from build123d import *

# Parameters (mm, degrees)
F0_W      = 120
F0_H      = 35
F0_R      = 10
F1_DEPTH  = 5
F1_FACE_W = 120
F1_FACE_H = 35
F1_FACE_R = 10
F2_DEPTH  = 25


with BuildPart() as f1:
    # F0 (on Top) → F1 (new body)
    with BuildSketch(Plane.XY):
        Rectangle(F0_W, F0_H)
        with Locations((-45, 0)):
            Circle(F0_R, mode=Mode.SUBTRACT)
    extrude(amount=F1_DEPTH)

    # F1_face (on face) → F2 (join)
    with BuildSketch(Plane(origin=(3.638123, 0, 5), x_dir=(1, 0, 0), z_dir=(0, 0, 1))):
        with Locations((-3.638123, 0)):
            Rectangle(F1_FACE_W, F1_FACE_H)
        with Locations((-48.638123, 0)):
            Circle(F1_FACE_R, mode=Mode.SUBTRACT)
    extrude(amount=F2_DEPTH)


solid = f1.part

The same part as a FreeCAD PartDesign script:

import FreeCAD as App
import Part
import Sketcher

doc = App.newDocument("Part")
body = doc.addObject("PartDesign::Body", "Body")

sketch1 = body.newObject("Sketcher::SketchObject", "Sketch")
sketch1.AttachmentSupport = (doc.getObject("XY_Plane"), [""])
sketch1.MapMode = "FlatFace"
sketch1.addGeometry([
    Part.LineSegment(App.Vector(-60, 18, 0), App.Vector(-60, -18, 0)),
    Part.LineSegment(App.Vector(-60, -18, 0), App.Vector(60, -18, 0)),
    Part.LineSegment(App.Vector(60, -18, 0), App.Vector(60, 18, 0)),
    Part.LineSegment(App.Vector(60, 18, 0), App.Vector(-60, 18, 0)),
    Part.Circle(App.Vector(-45, 0, 0), App.Vector(0, 0, 1), 10),
], False)
sketch1.addConstraint([
    Sketcher.Constraint("Coincident", 0, 2, 1, 1),
    Sketcher.Constraint("Coincident", 1, 2, 2, 1),
    Sketcher.Constraint("Coincident", 2, 2, 3, 1),
    Sketcher.Constraint("Coincident", 3, 2, 0, 1),
    Sketcher.Constraint("Vertical", 0),
    Sketcher.Constraint("Horizontal", 1),
    Sketcher.Constraint("Vertical", 2),
    Sketcher.Constraint("Horizontal", 3),
    Sketcher.Constraint("Symmetric", 0, 2, 2, 2, -1, 1),
    Sketcher.Constraint("PointOnObject", 4, 3, -1),
    Sketcher.Constraint("Diameter", 4, 20.0),
    Sketcher.Constraint("DistanceX", 1, 1, 1, 2, 120.0),
    Sketcher.Constraint("DistanceY", 0, 2, 0, 1, 35.0),
    Sketcher.Constraint("DistanceX", 4, 3, -1, 1, 45.0),
])
pad1 = body.newObject("PartDesign::Pad", "Pad")
pad1.Profile = sketch1
pad1.Length = 5

sketch2 = body.newObject("Sketcher::SketchObject", "Sketch001")
sketch2.AttachmentSupport = (doc.getObject("XY_Plane"), [""])
sketch2.MapMode = "FlatFace"
sketch2.AttachmentOffset = App.Placement(App.Vector(0, 0, 5), App.Rotation())
sketch2.addGeometry([
    Part.LineSegment(App.Vector(-60, 18, 0), App.Vector(-60, -18, 0)),
    Part.LineSegment(App.Vector(-60, -18, 0), App.Vector(60, -18, 0)),
    Part.LineSegment(App.Vector(60, -18, 0), App.Vector(60, 18, 0)),
    Part.LineSegment(App.Vector(60, 18, 0), App.Vector(-60, 18, 0)),
    Part.Circle(App.Vector(-45, 0, 0), App.Vector(0, 0, 1), 10),
], False)
sketch2.addConstraint([
    Sketcher.Constraint("Coincident", 0, 2, 1, 1),
    Sketcher.Constraint("Coincident", 1, 2, 2, 1),
    Sketcher.Constraint("Coincident", 2, 2, 3, 1),
    Sketcher.Constraint("Coincident", 3, 2, 0, 1),
    Sketcher.Constraint("Vertical", 0),
    Sketcher.Constraint("Horizontal", 1),
    Sketcher.Constraint("Vertical", 2),
    Sketcher.Constraint("Horizontal", 3),
    Sketcher.Constraint("Symmetric", 0, 2, 2, 2, -1, 1),
    Sketcher.Constraint("PointOnObject", 4, 3, -1),
    Sketcher.Constraint("Diameter", 4, 20.0),
    Sketcher.Constraint("DistanceX", 1, 1, 1, 2, 120.0),
    Sketcher.Constraint("DistanceY", 0, 2, 0, 1, 35.0),
    Sketcher.Constraint("DistanceX", 4, 3, -1, 1, 45.0),
])
pad2 = body.newObject("PartDesign::Pad", "Pad001")
pad2.Profile = sketch2
pad2.Length = 25

doc.recompute()
